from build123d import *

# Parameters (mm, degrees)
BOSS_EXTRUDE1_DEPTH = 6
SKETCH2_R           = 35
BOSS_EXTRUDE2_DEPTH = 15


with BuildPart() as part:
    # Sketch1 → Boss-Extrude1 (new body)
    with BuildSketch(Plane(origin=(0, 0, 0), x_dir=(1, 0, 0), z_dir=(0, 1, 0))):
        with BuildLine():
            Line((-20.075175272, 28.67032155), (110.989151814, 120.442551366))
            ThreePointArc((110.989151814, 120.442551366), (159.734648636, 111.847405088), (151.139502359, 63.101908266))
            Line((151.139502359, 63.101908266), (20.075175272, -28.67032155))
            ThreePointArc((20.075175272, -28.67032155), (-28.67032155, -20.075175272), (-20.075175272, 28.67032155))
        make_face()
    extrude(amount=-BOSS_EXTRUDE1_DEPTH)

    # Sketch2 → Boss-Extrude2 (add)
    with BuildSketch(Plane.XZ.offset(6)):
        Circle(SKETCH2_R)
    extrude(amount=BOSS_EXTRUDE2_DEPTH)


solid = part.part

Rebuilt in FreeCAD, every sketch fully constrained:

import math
import FreeCAD as App
import Part
import Sketcher

V = App.Vector
Q = App.Units.Quantity

doc = App.newDocument("Part")
body = doc.addObject("PartDesign::Body", "Body")

# Sketch on XZ plane
sketch1 = body.newObject("Sketcher::SketchObject", "Sketch")
sketch1.AttachmentSupport = (doc.getObject("XZ_Plane"), [""])
sketch1.MapMode = "FlatFace"
sketch1.addGeometry([
    Part.LineSegment(V(111, -120, 0), V(-20, -29, 0)),
    Part.ArcOfCircle(Part.Circle(V(0, 0, 0), V(0, 0, 1), 35), math.radians(55), math.radians(235)),
    Part.LineSegment(V(20, 29, 0), V(151, -63, 0)),
    Part.ArcOfCircle(Part.Circle(V(131, -92, 0), V(0, 0, 1), 35), math.radians(-125), math.radians(55)),
], False)
sketch1.addConstraint([
    Sketcher.Constraint("Tangent", 0, 2, 1, 2),
    Sketcher.Constraint("Tangent", 1, 1, 2, 1),
    Sketcher.Constraint("Tangent", 2, 2, 3, 2),
    Sketcher.Constraint("Tangent", 3, 1, 0, 1),
    Sketcher.Constraint("Coincident", 1, 3, -1, 1),
    Sketcher.Constraint("Equal", 1, 3),
    Sketcher.Constraint("Radius", 1, 35.0),
    Sketcher.Constraint("Angle", 0, Q("145 deg")),
    Sketcher.Constraint("Distance", 0, 160.0),
])
pad1 = body.newObject("PartDesign::Pad", "Pad")
pad1.Profile = sketch1
pad1.Length = 6

# Sketch on XZ plane
sketch2 = body.newObject("Sketcher::SketchObject", "Sketch001")
sketch2.AttachmentSupport = (doc.getObject("XZ_Plane"), [""])
sketch2.MapMode = "FlatFace"
sketch2.AttachmentOffset = App.Placement(V(0, 0, 6), App.Rotation())
sketch2.addGeometry(Part.Circle(V(0, 0, 0), V(0, 0, 1), 35), False)
sketch2.addConstraint([
    Sketcher.Constraint("Coincident", 0, 3, -1, 1),
    Sketcher.Constraint("Diameter", 0, 70.0),
])
pad2 = body.newObject("PartDesign::Pad", "Pad001")
pad2.Profile = sketch2
pad2.Length = 15

doc.recompute()
